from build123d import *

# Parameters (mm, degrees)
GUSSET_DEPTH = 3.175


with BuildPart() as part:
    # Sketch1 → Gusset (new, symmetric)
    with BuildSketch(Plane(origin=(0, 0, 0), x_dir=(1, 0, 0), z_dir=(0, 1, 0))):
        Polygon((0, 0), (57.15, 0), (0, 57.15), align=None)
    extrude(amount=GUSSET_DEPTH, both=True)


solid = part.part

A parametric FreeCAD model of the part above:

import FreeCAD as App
import Part
import Sketcher
from FreeCAD import Vector
Q = App.Units.Quantity


def add_polygon(sketch, points):
    """Adds a closed chain of lines whose ends are joined by coincident constraints."""
    first, n = sketch.GeometryCount, len(points)
    for a, b in zip(points, points[1:] + points[:1]):
        sketch.addGeometry(Part.LineSegment(App.Vector(*a, 0), App.Vector(*b, 0)), False)
    for i in range(n):
        sketch.addConstraint(Sketcher.Constraint("Coincident", first + i, 2, first + (i + 1) % n, 1))

doc = App.newDocument("Part")
body = doc.addObject("PartDesign::Body", "Body")

# Sketch on XZ plane
sketch1 = body.newObject("Sketcher::SketchObject", "Sketch")
sketch1.AttachmentSupport = (doc.getObject("XZ_Plane"), [""])
sketch1.MapMode = "FlatFace"
add_polygon(sketch1, [(0, 0), (57.15, 0), (0, -57.15)])  # lines 0-2
sketch1.addConstraint([
    Sketcher.Constraint("Horizontal", 0),
    Sketcher.Constraint("Vertical", 2),
    Sketcher.Constraint("Coincident", 2, 2, -1, 1),
    Sketcher.Constraint("Equal", 0, 2),
    Sketcher.Constraint("DistanceX", 0, 1, 0, 2, Q("2.25 in")),
])
pad1 = body.newObject("PartDesign::Pad", "Pad")
pad1.Profile = sketch1
pad1.Length = Q("0.25 in")
pad1.Midplane = True

doc.recompute()
